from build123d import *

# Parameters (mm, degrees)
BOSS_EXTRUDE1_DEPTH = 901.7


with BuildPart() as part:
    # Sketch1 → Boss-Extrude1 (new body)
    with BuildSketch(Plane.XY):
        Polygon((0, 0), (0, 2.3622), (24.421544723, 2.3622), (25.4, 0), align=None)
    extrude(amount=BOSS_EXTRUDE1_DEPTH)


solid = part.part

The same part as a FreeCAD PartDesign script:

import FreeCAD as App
import Part
import Sketcher
Q = App.Units.Quantity

doc = App.newDocument("Part")
body = doc.addObject("PartDesign::Body", "Body")

# Sketch on XY plane
sketch1 = body.newObject("Sketcher::SketchObject", "Sketch")
sketch1.AttachmentSupport = (doc.getObject("XY_Plane"), [""])
sketch1.MapMode = "FlatFace"
sketch1.addGeometry(Part.LineSegment(App.Vector(0, 2.3622, 0), App.Vector(0, 0, 0)), False)
sketch1.addGeometry(Part.LineSegment(App.Vector(0, 0, 0), App.Vector(25.4, 0, 0)), False)
sketch1.addGeometry(Part.LineSegment(App.Vector(25.4, 0, 0), App.Vector(24.421545, 2.3622, 0)), False)
sketch1.addGeometry(Part.LineSegment(App.Vector(24.421545, 2.3622, 0), App.Vector(0, 2.3622, 0)), False)
sketch1.addConstraint(Sketcher.Constraint("Coincident", 0, 2, 1, 1))
sketch1.addConstraint(Sketcher.Constraint("Coincident", 1, 2, 2, 1))
sketch1.addConstraint(Sketcher.Constraint("Coincident", 2, 2, 3, 1))
sketch1.addConstraint(Sketcher.Constraint("Coincident", 3, 2, 0, 1))
sketch1.addConstraint(Sketcher.Constraint("Vertical", 0))
sketch1.addConstraint(Sketcher.Constraint("Horizontal", 1))
sketch1.addConstraint(Sketcher.Constraint("Horizontal", 3))
sketch1.addConstraint(Sketcher.Constraint("Coincident", 0, 2, -1, 1))
sketch1.addConstraint(Sketcher.Constraint("DistanceX", 1, 1, 1, 2, Q("1 in")))
sketch1.addConstraint(Sketcher.Constraint("Angle", 2, Q("112.5 deg")))
sketch1.addConstraint(Sketcher.Constraint("DistanceY", 0, 2, 0, 1, Q("0.093 in")))
pad1 = body.newObject("PartDesign::Pad", "Pad")
pad1.Profile = sketch1
pad1.Length = Q("35.5 in")

doc.recompute()
